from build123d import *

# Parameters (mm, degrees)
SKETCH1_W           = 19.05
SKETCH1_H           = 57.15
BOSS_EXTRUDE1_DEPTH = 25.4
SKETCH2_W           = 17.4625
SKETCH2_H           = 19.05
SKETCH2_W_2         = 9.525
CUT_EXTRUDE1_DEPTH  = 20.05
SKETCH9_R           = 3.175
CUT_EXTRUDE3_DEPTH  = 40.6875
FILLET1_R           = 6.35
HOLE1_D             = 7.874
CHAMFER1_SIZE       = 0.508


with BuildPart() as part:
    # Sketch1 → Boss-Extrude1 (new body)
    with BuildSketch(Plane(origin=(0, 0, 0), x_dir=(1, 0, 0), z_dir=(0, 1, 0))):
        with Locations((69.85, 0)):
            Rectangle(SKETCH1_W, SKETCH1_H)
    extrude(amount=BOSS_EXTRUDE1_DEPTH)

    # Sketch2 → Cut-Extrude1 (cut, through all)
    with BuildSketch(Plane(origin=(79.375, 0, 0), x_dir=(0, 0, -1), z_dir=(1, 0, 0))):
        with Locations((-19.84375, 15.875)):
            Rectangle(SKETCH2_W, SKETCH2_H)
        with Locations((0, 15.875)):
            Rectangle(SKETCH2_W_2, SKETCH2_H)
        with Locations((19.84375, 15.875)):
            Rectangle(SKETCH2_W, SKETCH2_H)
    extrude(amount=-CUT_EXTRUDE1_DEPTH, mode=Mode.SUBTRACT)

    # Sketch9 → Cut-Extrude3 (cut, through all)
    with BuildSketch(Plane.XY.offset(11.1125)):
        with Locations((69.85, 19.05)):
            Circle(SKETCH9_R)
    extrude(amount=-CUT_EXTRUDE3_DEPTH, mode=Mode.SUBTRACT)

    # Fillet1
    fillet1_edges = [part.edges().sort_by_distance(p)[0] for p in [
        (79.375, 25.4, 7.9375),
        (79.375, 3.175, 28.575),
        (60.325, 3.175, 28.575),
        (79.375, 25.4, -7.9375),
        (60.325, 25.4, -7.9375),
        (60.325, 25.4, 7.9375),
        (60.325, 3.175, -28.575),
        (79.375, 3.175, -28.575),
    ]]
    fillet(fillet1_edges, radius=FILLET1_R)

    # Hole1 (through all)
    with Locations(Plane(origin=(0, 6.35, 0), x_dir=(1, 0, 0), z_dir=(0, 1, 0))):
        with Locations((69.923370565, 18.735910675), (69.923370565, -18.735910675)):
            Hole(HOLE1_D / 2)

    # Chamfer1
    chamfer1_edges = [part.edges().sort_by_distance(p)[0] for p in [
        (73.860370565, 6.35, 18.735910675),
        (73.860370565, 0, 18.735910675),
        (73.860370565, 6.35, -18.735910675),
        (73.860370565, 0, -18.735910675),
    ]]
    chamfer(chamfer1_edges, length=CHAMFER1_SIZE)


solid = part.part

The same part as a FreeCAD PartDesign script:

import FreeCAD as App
import Part
import Sketcher
from FreeCAD import Vector
Q = App.Units.Quantity


def edges_at(feature, points):
    """Names of the edges that pass closest to the given points."""
    edges = feature.Shape.Edges
    near = lambda p: min(range(len(edges)), key=lambda i: edges[i].distToShape(Part.Vertex(*p))[0])
    return sorted({f"Edge{near(p) + 1}" for p in points})


def add_polygon(sketch, points):
    """Adds a closed chain of lines whose ends are joined by coincident constraints."""
    first, n = sketch.GeometryCount, len(points)
    for a, b in zip(points, points[1:] + points[:1]):
        sketch.addGeometry(Part.LineSegment(App.Vector(*a, 0), App.Vector(*b, 0)), False)
    for i in range(n):
        sketch.addConstraint(Sketcher.Constraint("Coincident", first + i, 2, first + (i + 1) % n, 1))

doc = App.newDocument("Part")
body = doc.addObject("PartDesign::Body", "Body")

# Sketch on XZ plane
sketch1 = body.newObject("Sketcher::SketchObject", "Sketch")
sketch1.AttachmentSupport = (doc.getObject("XZ_Plane"), [""])
sketch1.MapMode = "FlatFace"
add_polygon(sketch1, [(60, -29), (60, 29), (79, 29), (79, -29)])  # lines 0-3
sketch1.addConstraint([
    Sketcher.Constraint("Vertical", 0),
    Sketcher.Constraint("Horizontal", 1),
    Sketcher.Constraint("Vertical", 2),
    Sketcher.Constraint("Horizontal", 3),
    Sketcher.Constraint("DistanceX", 1, 1, 1, 2, Q("0.75 in")),
    Sketcher.Constraint("DistanceY", 0, 1, 0, 2, Q("2.25 in")),
    Sketcher.Constraint("DistanceX", -1, 1, 0, 2, Q("2.375 in")),
    Sketcher.Constraint("DistanceY", -1, 1, 0, 2, Q("1.125 in")),
])
pad1 = body.newObject("PartDesign::Pad", "Pad")
pad1.Profile = sketch1
pad1.Length = Q("1 in")
pad1.Reversed = True

# Sketch on YZ plane
sketch2 = body.newObject("Sketcher::SketchObject", "Sketch001")
sketch2.AttachmentSupport = (doc.getObject("YZ_Plane"), [""])
sketch2.MapMode = "FlatFace"
sketch2.AttachmentOffset = App.Placement(Vector(0, 0, 3.125 * 25.4), App.Rotation())
add_polygon(sketch2, [(25, 29), (6, 29), (6, 11), (25, 11)])  # lines 0-3
add_polygon(sketch2, [(25, 5), (6, 5), (6, -5), (25, -5)])  # lines 4-7
add_polygon(sketch2, [(25, -11), (6, -11), (6, -29), (25, -29)])  # lines 8-11
sketch2.addConstraint([
    Sketcher.Constraint("Horizontal", 0),
    Sketcher.Constraint("Vertical", 1),
    Sketcher.Constraint("Horizontal", 2),
    Sketcher.Constraint("Vertical", 3),
    Sketcher.Constraint("Horizontal", 4),
    Sketcher.Constraint("Vertical", 5),
    Sketcher.Constraint("Horizontal", 6),
    Sketcher.Constraint("Vertical", 7),
    Sketcher.Constraint("Horizontal", 8),
    Sketcher.Constraint("Vertical", 9),
    Sketcher.Constraint("Horizontal", 10),
    Sketcher.Constraint("Vertical", 11),
    Sketcher.Constraint("Symmetric", 1, 2, 8, 2, -1),
    Sketcher.Constraint("Symmetric", 3, 2, 10, 2, -1),
    Sketcher.Constraint("Vertical", 1, 2, 4, 2),
    Sketcher.Constraint("Vertical", 3, 2, 6, 2),
    Sketcher.Constraint("DistanceX", -1, 1, 2, 2, Q("1 in")),
    Sketcher.Constraint("DistanceX", 0, 2, 0, 1, Q("0.75 in")),
    Sketcher.Constraint("DistanceY", 1, 2, 1, 1, Q("0.6875 in")),
    Sketcher.Constraint("DistanceY", 5, 2, 5, 1, Q("0.375 in")),
    Sketcher.Constraint("DistanceY", 4, 2, 1, 2, Q("0.25 in")),
    Sketcher.Constraint("DistanceY", 8, 2, 5, 2, Q("0.25 in")),
])
pocket1 = body.newObject("PartDesign::Pocket", "Pocket")
pocket1.Profile = sketch2
pocket1.Type = "ThroughAll"

# Sketch on XY plane
sketch3 = body.newObject("Sketcher::SketchObject", "Sketch002")
sketch3.AttachmentSupport = (doc.getObject("XY_Plane"), [""])
sketch3.MapMode = "FlatFace"
sketch3.AttachmentOffset = App.Placement(Vector(0, 0, 0.4375 * 25.4), App.Rotation())
sketch3.addGeometry(Part.Circle(Vector(69.8, 19.1, 0), Vector(0, 0, 1), 3.2), False)
sketch3.addConstraint([
    Sketcher.Constraint("Diameter", 0, Q("0.25 in")),
    Sketcher.Constraint("DistanceX", -1, 1, 0, 3, Q("2.75 in")),
    Sketcher.Constraint("DistanceY", -1, 1, 0, 3, Q("0.75 in")),
])
pocket2 = body.newObject("PartDesign::Pocket", "Pocket001")
pocket2.Profile = sketch3
pocket2.Type = "ThroughAll"
doc.recompute()

fillet = body.newObject("PartDesign::Fillet", "Fillet")
fillet.Base = (pocket2, edges_at(pocket2, [
    (79.375, 25.4, 7.938),
    (79.375, 3.175, 28.575),
    (60.325, 3.175, 28.575),
    (79.375, 25.4, -7.938),
    (60.325, 25.4, -7.938),
    (60.325, 25.4, 7.938),
    (60.325, 3.175, -28.575),
    (79.375, 3.175, -28.575),
]))
fillet.Radius = Q("0.25 in")

# Sketch on XZ plane
sketch4 = body.newObject("Sketcher::SketchObject", "Sketch003")
sketch4.AttachmentSupport = (doc.getObject("XZ_Plane"), [""])
sketch4.MapMode = "FlatFace"
sketch4.AttachmentOffset = App.Placement(Vector(0, 0, -0.25 * 25.4), App.Rotation())
sketch4.addGeometry([
    Part.Circle(Vector(69.9, -18.7, 0), Vector(0, 0, 1), 3.9),
    Part.Circle(Vector(69.9, 18.7, 0), Vector(0, 0, 1), 3.9),
], False)
sketch4.addConstraint([
    Sketcher.Constraint("Equal", 0, 1),
    Sketcher.Constraint("Symmetric", 0, 3, 1, 3, -1),
    Sketcher.Constraint("Diameter", 0, Q("0.31 in")),
    Sketcher.Constraint("DistanceX", -1, 1, 0, 3, 69.923371),
    Sketcher.Constraint("DistanceY", 0, 3, -1, 1, 18.735911),
])
doc.recompute()
hole = body.newObject("PartDesign::Hole", "Hole")
hole.Profile = sketch4
hole.ThreadType = "None"
hole.Diameter = Q("0.31 in")
hole.DepthType = "ThroughAll"
hole.Reversed = True
doc.recompute()

chamfer = body.newObject("PartDesign::Chamfer", "Chamfer")
chamfer.Base = (hole, edges_at(hole, [
    (73.86, 6.35, 18.736),
    (73.86, 0, 18.736),
    (73.86, 6.35, -18.736),
    (73.86, 0, -18.736),
]))
chamfer.Size = Q("0.02 in")

doc.recompute()
